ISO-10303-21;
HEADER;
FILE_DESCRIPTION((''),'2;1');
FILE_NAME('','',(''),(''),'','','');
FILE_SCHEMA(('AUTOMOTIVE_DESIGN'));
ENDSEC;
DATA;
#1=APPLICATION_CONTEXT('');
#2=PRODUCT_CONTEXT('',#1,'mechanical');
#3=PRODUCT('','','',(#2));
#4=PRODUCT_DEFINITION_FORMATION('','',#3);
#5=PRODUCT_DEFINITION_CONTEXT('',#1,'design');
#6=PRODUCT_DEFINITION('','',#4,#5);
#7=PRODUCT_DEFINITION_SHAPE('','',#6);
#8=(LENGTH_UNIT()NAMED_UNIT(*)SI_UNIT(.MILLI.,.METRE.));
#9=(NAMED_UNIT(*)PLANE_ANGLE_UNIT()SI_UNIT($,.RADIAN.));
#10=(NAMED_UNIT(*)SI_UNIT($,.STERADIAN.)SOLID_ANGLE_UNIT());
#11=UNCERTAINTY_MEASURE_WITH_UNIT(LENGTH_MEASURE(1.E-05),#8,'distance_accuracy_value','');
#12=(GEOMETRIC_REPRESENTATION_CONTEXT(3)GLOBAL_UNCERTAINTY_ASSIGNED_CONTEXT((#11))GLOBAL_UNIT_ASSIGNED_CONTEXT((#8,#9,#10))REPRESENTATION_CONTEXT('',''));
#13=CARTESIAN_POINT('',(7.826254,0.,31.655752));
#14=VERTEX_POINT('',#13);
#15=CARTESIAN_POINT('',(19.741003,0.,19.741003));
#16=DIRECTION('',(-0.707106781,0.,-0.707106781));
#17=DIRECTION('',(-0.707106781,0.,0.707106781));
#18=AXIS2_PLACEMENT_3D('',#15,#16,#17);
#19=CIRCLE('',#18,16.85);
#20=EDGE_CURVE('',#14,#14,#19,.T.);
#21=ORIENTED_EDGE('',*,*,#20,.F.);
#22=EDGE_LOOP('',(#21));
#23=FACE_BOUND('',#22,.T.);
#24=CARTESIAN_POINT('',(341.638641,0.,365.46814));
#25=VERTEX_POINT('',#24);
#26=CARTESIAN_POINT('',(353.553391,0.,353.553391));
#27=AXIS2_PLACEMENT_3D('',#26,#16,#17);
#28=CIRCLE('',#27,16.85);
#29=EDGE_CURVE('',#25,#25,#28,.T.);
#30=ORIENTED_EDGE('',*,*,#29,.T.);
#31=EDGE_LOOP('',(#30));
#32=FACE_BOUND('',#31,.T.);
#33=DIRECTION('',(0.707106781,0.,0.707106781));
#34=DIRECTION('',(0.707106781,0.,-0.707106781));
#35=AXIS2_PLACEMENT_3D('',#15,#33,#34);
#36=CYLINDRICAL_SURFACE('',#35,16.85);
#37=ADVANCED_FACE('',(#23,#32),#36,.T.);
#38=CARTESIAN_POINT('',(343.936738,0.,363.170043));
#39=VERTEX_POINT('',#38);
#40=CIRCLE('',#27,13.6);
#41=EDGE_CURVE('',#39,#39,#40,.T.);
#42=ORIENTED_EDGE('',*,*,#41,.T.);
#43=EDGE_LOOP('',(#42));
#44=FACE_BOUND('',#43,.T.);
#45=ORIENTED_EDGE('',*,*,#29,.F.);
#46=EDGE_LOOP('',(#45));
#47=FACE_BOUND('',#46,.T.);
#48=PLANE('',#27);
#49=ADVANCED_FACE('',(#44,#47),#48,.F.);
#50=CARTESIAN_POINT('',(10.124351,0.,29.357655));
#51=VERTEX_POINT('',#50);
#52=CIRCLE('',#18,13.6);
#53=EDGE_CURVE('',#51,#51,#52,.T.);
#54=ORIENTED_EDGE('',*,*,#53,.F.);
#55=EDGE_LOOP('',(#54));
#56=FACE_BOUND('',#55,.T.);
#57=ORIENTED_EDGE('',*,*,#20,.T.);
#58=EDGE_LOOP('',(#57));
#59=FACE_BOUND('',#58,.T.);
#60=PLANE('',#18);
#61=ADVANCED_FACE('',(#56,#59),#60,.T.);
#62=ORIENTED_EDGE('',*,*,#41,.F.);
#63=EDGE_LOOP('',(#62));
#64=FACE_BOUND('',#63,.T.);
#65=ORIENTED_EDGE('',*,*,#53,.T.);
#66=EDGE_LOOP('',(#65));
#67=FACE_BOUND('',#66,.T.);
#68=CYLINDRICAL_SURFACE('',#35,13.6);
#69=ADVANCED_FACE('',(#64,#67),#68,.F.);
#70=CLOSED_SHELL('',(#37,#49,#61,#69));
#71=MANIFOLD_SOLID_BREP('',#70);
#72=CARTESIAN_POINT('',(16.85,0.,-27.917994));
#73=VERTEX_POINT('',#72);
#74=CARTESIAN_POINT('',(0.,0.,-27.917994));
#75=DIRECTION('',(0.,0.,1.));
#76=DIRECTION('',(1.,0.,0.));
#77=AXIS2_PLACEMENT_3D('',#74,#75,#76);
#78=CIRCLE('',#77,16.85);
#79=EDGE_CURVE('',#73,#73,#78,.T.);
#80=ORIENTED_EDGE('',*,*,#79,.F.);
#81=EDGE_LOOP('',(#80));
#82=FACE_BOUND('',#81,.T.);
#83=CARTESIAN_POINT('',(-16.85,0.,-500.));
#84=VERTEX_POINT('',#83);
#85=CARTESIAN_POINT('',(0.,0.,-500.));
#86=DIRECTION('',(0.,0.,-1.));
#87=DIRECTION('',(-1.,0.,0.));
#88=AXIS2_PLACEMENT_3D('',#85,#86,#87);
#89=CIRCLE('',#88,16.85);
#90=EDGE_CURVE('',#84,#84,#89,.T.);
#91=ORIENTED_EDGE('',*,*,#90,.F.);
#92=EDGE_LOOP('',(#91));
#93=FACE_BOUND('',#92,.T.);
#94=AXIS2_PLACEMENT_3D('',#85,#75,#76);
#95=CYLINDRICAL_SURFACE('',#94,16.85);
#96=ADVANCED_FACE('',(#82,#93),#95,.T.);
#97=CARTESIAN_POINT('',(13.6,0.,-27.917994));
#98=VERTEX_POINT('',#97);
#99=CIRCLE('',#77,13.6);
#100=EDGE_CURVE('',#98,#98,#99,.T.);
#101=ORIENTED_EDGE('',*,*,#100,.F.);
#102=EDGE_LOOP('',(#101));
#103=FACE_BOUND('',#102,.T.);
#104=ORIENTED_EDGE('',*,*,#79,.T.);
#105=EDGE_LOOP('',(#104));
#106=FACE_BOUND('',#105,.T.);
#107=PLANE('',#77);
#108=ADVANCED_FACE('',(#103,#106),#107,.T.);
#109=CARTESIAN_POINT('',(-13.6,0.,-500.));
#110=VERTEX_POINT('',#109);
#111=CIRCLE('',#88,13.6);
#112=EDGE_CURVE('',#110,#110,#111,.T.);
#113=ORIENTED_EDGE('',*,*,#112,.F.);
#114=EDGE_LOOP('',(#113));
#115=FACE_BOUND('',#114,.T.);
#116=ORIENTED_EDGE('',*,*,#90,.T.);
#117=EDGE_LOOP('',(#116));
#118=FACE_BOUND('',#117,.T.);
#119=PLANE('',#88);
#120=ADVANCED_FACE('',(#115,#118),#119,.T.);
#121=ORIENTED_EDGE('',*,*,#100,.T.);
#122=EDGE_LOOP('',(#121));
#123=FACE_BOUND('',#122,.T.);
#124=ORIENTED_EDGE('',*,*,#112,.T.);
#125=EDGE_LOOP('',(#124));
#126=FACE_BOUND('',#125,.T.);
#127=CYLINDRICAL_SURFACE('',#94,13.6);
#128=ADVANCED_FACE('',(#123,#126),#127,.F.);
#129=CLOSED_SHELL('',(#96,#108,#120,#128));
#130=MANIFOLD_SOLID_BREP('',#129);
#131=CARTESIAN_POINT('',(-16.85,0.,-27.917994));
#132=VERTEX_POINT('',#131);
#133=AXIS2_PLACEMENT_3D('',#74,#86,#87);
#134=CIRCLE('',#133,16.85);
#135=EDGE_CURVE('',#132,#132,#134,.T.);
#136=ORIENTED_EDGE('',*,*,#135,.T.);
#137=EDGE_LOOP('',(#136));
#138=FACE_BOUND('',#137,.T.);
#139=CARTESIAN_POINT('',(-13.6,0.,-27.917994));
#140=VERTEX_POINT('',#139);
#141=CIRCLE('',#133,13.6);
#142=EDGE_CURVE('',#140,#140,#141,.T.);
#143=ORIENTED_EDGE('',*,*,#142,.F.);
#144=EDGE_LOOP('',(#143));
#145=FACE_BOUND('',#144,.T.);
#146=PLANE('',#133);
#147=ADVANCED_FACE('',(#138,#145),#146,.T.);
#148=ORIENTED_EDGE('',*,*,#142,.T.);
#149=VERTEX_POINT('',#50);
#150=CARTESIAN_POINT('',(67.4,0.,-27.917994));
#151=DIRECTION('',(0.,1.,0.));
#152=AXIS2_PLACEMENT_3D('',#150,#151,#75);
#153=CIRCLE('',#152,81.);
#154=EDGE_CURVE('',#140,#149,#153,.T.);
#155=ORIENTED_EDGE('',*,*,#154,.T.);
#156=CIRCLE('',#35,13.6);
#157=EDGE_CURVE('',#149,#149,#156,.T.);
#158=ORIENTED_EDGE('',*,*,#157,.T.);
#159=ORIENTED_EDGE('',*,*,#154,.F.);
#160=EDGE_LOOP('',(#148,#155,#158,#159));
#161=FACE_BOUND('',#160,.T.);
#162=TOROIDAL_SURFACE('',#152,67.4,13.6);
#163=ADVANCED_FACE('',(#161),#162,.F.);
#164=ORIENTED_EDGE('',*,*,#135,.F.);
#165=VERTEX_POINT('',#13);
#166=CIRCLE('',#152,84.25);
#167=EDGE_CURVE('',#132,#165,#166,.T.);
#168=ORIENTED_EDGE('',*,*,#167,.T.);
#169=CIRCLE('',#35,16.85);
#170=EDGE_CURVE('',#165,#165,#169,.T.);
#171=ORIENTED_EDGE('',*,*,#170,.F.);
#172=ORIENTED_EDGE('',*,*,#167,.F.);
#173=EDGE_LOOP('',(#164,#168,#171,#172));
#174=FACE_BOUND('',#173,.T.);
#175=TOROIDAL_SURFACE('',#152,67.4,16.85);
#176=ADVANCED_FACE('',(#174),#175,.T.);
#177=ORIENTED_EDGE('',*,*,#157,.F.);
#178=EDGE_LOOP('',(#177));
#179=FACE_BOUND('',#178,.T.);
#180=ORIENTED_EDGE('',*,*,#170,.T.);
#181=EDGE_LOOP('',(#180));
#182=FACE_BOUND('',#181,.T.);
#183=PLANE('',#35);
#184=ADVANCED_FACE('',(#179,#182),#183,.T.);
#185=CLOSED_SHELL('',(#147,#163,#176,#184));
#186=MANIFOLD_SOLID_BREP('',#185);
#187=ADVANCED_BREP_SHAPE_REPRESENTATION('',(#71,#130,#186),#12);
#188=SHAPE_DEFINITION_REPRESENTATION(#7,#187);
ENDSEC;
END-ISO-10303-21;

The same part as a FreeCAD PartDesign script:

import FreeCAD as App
import Part
import Sketcher
from FreeCAD import Vector

doc = App.newDocument("Part")
body = doc.addObject("PartDesign::Body", "Body")

sketch1 = body.newObject("Sketcher::SketchObject", "Sketch")
sketch1.Placement = App.Placement(Vector(19.741003, 0, 19.741003), App.Rotation(Vector(0.707106781, 0, -0.707106781), Vector(0, 0.999999999, 0), Vector(0.707106781, 0, 0.707106781), "ZXY"))
sketch1.addGeometry([
    Part.Circle(Vector(0, 0, 0), Vector(0, 0, 1), 17),
    Part.Circle(Vector(0, 0, 0), Vector(0, 0, 1), 14),
], False)
sketch1.addConstraint([
    Sketcher.Constraint("Coincident", 0, 3, -1, 1),
    Sketcher.Constraint("Coincident", 1, 3, -1, 1),
    Sketcher.Constraint("Diameter", 0, 33.7),
    Sketcher.Constraint("Diameter", 1, 27.2),
])
pad1 = body.newObject("PartDesign::Pad", "Pad")
pad1.Profile = sketch1
pad1.Length = 472.082006
body2 = doc.addObject("PartDesign::Body", "Body001")

sketch2 = body2.newObject("Sketcher::SketchObject", "Sketch001")
sketch2.AttachmentSupport = (doc.getObject("XY_Plane001"), [""])
sketch2.MapMode = "FlatFace"
sketch2.AttachmentOffset = App.Placement(Vector(0, 0, -27.917994), App.Rotation())
sketch2.addGeometry([
    Part.Circle(Vector(0, 0, 0), Vector(0, 0, 1), 17),
    Part.Circle(Vector(0, 0, 0), Vector(0, 0, 1), 14),
], False)
sketch2.addGeometry(Part.LineSegment(Vector(67, 0, 0), Vector(67, 10, 0)), True)
sketch2.addConstraint([
    Sketcher.Constraint("Vertical", 2),
    Sketcher.Constraint("Coincident", 0, 3, -1, 1),
    Sketcher.Constraint("Coincident", 1, 3, -1, 1),
    Sketcher.Constraint("PointOnObject", 2, 1, -1),
    Sketcher.Constraint("Diameter", 0, 33.7),
    Sketcher.Constraint("Diameter", 1, 27.2),
    Sketcher.Constraint("DistanceY", 2, 1, 2, 2, 10.0),
    Sketcher.Constraint("DistanceX", -1, 1, 2, 1, 67.4),
])
revolution = body2.newObject("PartDesign::Revolution", "Revolution")
revolution.Profile = sketch2
revolution.ReferenceAxis = (sketch2, ["Axis0"])
revolution.Angle = 45
body3 = doc.addObject("PartDesign::Body", "Body002")

sketch3 = body3.newObject("Sketcher::SketchObject", "Sketch002")
sketch3.AttachmentSupport = (doc.getObject("XY_Plane002"), [""])
sketch3.MapMode = "FlatFace"
sketch3.AttachmentOffset = App.Placement(Vector(0, 0, -27.917994), App.Rotation())
sketch3.addGeometry([
    Part.Circle(Vector(0, 0, 0), Vector(0, 0, 1), 17),
    Part.Circle(Vector(0, 0, 0), Vector(0, 0, 1), 14),
], False)
sketch3.addConstraint([
    Sketcher.Constraint("Coincident", 0, 3, -1, 1),
    Sketcher.Constraint("Coincident", 1, 3, -1, 1),
    Sketcher.Constraint("Diameter", 0, 33.7),
    Sketcher.Constraint("Diameter", 1, 27.2),
])
pad2 = body3.newObject("PartDesign::Pad", "Pad001")
pad2.Profile = sketch3
pad2.Length = 472.082006
pad2.Reversed = True

doc.recompute()
